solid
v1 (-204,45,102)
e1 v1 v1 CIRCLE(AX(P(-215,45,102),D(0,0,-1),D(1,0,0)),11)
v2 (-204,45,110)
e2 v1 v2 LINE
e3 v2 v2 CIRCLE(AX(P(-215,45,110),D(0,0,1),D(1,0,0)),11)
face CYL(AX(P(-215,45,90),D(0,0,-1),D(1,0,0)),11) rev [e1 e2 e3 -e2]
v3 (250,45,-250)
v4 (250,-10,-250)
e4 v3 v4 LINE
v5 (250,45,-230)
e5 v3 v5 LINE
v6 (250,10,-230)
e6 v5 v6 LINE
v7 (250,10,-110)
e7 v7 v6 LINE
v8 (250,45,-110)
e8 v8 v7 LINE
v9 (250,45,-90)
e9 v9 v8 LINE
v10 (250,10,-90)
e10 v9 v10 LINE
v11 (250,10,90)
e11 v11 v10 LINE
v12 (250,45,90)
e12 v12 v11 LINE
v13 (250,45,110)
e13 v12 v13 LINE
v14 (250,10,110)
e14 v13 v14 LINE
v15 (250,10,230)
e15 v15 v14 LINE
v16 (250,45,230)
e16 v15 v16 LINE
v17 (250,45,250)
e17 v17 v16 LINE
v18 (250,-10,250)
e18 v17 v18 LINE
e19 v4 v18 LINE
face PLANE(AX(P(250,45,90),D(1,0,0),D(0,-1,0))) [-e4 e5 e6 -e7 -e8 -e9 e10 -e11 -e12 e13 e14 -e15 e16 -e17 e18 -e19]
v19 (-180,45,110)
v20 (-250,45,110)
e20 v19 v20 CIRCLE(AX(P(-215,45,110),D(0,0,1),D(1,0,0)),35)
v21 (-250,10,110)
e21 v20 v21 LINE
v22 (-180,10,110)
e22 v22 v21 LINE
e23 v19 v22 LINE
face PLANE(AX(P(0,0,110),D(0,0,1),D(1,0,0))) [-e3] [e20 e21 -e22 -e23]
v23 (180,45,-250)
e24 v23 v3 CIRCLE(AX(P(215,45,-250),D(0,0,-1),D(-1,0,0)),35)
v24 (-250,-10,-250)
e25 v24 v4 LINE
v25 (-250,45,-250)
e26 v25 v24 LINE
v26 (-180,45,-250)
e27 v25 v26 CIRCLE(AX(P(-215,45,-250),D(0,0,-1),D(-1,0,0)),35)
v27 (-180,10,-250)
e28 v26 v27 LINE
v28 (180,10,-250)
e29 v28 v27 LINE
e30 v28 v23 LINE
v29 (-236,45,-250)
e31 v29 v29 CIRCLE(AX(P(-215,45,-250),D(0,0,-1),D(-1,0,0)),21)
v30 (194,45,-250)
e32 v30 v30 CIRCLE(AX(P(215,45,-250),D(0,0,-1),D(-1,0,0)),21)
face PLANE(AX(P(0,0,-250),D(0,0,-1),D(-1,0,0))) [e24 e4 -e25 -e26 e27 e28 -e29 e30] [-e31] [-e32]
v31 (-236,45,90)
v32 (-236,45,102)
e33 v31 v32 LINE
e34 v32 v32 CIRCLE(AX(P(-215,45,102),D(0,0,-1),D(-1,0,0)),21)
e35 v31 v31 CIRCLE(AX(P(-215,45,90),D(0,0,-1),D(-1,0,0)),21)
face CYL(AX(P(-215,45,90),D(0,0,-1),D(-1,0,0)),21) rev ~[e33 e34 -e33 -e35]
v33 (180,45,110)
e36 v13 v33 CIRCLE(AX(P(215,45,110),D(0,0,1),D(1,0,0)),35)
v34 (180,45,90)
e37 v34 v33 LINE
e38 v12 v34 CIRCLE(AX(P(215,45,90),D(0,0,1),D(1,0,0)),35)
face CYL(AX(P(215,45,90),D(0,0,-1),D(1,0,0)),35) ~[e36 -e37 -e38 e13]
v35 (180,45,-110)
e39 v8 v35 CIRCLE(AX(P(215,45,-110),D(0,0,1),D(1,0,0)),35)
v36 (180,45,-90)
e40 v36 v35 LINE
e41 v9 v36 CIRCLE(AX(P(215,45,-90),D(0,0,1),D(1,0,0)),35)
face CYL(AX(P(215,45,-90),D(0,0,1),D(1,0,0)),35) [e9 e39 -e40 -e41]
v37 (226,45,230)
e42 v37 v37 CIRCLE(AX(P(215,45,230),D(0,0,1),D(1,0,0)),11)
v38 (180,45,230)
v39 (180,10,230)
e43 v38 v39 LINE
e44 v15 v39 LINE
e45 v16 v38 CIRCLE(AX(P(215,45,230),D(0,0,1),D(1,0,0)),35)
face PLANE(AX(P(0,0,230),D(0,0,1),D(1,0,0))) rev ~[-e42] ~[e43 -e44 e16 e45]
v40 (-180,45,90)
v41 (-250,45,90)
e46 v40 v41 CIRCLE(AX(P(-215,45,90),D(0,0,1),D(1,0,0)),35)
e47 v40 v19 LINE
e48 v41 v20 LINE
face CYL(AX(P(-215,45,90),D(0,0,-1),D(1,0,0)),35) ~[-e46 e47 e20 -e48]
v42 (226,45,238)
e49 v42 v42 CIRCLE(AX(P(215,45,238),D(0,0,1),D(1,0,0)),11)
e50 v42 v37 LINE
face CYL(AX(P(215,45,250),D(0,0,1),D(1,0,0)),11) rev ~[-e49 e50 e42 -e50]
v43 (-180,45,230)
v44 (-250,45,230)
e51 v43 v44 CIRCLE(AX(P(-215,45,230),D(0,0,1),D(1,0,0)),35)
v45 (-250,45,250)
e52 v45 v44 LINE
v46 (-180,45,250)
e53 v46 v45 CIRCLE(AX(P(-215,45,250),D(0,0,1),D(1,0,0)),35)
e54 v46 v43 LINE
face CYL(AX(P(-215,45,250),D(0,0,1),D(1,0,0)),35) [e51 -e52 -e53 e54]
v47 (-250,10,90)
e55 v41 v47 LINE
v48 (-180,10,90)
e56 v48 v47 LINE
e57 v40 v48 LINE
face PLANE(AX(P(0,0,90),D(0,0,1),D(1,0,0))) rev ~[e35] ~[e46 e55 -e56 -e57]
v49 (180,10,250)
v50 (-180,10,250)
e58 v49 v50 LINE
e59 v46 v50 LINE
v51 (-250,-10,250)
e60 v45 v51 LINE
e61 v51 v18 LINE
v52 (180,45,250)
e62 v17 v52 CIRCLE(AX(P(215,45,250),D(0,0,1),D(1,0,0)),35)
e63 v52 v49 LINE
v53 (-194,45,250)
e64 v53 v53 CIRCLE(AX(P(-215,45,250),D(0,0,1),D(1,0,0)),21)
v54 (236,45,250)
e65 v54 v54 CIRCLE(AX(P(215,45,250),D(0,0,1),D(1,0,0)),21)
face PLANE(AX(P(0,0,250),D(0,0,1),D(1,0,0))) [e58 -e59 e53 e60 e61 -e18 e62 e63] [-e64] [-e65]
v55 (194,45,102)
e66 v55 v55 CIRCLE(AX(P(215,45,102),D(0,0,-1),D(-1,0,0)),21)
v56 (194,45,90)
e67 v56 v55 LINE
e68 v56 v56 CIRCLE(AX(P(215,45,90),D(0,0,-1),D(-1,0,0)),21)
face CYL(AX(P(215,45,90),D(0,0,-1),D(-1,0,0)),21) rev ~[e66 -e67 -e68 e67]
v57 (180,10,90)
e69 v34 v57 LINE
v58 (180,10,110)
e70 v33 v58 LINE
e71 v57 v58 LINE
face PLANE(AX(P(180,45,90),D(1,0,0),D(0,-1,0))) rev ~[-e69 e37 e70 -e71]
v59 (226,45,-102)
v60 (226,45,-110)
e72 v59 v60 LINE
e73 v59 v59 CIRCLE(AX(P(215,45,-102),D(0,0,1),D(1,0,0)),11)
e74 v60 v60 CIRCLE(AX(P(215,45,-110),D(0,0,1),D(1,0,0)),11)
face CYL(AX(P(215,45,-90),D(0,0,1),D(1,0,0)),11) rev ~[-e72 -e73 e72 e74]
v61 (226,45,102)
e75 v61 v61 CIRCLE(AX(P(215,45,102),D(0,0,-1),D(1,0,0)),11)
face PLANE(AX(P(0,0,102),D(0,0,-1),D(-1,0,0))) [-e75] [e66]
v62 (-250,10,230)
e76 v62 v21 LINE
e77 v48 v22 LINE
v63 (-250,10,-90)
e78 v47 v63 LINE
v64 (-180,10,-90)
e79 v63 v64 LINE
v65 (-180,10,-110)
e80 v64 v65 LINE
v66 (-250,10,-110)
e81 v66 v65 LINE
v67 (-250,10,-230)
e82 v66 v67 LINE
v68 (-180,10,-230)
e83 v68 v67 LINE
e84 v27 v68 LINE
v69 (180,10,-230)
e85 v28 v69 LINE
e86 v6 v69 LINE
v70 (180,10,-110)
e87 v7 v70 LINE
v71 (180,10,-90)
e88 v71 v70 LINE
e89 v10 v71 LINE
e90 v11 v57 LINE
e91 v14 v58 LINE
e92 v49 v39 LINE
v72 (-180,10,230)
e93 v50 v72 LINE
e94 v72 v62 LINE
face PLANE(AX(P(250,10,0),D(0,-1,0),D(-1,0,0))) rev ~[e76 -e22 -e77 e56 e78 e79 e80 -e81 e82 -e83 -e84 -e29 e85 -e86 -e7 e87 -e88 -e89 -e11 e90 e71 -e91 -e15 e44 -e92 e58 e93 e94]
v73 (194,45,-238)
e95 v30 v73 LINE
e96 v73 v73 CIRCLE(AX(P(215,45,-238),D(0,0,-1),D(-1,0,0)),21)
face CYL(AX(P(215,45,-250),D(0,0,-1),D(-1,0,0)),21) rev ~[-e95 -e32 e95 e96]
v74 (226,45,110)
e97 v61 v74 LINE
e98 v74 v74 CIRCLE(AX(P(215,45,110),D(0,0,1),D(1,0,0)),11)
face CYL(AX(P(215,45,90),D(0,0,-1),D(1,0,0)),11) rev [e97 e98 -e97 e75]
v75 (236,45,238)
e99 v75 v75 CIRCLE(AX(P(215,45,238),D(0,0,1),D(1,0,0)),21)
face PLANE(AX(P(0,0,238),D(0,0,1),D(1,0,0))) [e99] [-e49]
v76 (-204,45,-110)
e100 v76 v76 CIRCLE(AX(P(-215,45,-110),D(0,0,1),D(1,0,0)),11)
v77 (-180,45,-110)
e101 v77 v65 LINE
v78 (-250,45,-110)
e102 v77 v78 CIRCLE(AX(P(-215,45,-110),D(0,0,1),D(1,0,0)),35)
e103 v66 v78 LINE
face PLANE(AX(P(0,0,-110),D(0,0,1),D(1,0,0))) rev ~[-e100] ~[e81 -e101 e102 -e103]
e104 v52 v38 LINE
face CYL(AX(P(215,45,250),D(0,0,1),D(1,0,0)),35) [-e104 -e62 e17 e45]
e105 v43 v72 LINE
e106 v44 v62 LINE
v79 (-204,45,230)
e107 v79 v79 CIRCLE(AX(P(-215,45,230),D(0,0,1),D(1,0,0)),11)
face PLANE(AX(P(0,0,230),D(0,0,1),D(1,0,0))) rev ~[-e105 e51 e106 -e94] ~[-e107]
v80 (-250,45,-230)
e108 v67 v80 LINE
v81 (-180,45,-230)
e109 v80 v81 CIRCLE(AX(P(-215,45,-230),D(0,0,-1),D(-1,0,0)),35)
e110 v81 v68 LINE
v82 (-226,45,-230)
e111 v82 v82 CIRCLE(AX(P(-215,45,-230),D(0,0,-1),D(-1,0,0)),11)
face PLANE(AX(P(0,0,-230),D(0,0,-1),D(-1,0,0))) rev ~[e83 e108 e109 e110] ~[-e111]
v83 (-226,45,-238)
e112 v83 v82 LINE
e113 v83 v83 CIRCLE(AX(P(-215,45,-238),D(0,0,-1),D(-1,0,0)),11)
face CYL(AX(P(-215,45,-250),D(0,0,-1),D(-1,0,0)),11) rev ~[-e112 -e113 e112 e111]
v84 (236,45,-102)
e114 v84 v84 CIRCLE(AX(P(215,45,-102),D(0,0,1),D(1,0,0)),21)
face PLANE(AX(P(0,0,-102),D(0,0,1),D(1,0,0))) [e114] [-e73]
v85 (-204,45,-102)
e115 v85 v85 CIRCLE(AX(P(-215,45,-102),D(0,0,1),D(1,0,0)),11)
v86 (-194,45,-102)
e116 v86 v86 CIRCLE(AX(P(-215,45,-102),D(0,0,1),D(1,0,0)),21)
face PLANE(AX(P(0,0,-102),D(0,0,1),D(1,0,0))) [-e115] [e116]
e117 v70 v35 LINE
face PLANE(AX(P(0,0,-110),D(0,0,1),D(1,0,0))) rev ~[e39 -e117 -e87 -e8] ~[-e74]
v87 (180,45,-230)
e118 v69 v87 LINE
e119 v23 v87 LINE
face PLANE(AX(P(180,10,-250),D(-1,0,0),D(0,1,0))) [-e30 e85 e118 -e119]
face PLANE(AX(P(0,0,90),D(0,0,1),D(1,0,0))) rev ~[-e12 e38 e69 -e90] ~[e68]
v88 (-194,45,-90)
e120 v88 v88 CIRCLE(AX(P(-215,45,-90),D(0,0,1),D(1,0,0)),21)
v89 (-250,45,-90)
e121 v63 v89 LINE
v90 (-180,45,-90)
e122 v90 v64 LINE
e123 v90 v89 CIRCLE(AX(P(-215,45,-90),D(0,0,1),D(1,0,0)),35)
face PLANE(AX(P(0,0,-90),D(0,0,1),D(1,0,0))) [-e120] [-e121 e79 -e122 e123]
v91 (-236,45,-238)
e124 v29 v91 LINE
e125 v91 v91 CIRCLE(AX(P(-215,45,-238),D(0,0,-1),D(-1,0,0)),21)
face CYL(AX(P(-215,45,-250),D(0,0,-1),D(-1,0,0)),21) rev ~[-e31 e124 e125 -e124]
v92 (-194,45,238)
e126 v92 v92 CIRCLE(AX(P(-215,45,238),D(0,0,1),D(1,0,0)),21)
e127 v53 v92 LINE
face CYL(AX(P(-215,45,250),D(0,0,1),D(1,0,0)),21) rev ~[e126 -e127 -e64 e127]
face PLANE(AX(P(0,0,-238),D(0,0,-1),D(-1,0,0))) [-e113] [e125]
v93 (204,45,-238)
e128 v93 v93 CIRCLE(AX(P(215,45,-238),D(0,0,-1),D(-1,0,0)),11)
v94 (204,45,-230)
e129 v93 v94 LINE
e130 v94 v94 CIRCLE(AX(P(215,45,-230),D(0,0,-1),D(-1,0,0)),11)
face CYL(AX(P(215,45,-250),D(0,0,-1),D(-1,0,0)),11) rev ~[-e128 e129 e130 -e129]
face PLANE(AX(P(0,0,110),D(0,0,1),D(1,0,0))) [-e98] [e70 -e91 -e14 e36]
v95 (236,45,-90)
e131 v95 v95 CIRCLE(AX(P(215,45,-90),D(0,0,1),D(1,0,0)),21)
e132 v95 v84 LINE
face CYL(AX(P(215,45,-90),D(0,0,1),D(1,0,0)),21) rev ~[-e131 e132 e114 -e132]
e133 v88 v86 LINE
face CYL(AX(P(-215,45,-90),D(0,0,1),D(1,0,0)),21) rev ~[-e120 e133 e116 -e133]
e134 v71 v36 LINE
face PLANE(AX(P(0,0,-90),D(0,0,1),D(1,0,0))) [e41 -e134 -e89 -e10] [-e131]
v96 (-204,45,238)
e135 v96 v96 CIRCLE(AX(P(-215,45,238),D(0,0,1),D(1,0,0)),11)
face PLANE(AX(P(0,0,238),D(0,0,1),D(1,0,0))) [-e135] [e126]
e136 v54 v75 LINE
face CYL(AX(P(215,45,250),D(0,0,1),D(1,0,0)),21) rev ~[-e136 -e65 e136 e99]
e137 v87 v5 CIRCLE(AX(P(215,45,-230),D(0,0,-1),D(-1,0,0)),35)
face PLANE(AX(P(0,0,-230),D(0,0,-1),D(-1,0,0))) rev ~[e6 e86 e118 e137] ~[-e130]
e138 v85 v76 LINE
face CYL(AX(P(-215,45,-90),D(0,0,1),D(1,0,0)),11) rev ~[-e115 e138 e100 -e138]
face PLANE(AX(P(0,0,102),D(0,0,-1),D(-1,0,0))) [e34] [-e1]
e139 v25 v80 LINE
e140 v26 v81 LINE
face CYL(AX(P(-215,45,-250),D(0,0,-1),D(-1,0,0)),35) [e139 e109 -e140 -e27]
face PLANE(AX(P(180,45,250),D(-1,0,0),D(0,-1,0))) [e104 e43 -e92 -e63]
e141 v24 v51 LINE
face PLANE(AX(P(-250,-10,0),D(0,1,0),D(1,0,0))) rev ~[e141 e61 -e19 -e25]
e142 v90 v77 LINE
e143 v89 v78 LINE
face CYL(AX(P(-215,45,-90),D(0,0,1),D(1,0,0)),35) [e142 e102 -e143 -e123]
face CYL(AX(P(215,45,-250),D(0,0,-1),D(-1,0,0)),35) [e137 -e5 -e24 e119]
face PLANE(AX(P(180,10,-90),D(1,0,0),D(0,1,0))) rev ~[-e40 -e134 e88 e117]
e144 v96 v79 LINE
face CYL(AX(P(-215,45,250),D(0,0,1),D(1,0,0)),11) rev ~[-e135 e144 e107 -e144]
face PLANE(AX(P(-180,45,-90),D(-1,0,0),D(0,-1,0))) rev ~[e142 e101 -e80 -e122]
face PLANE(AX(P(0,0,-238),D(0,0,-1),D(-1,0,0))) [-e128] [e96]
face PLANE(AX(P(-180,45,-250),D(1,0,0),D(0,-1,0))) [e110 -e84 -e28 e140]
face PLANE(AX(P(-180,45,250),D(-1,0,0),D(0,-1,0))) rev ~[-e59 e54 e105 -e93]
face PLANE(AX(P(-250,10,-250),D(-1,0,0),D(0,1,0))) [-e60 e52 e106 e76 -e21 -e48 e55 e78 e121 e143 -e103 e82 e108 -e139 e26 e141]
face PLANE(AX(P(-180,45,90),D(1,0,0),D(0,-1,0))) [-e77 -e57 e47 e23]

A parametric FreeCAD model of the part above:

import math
import FreeCAD as App
import Part
import Sketcher
from FreeCAD import Vector
Q = App.Units.Quantity

doc = App.newDocument("Part")
params = doc.addObject("Spreadsheet::Sheet", "Params")
for row, (alias, value) in enumerate([
    ("sketch1_width", "500 mm"),
    ("sketch1_height", "20 mm"),
    ("pad1_length", "500 mm"),
    ("sketch2_diameter", "22 mm"),
    ("sketch2_radius", "35 mm"),
    ("sketch2_height", "45 mm"),
    ("pad2_length", "20 mm"),
    ("sketch3_diameter", "22 mm"),
    ("sketch3_radius", "35 mm"),
    ("sketch3_height", "45 mm"),
    ("pad3_length", "20 mm"),
    ("sketch4_diameter", "42 mm"),
    ("pocket1_length", "12 mm"),
    ("sketch5_diameter", "42 mm"),
    ("pocket2_length", "12 mm"),
    ("sketch6_diameter", "22 mm"),
    ("sketch6_radius", "35 mm"),
    ("sketch6_height", "45 mm"),
    ("pad4_length", "20 mm"),
    ("sketch7_diameter", "22 mm"),
    ("sketch7_height", "45 mm"),
    ("sketch7_radius", "35 mm"),
    ("pad5_length", "20 mm"),
    ("sketch8_diameter", "42 mm"),
    ("pocket3_length", "12 mm"),
    ("sketch9_diameter", "42 mm"),
    ("pocket4_length", "12 mm"),
    ("sketch10_diameter", "22 mm"),
    ("sketch10_radius", "35 mm"),
    ("sketch10_height", "35 mm"),
    ("pad6_length", "20 mm"),
    ("sketch11_diameter", "22 mm"),
    ("sketch11_radius", "35 mm"),
    ("sketch11_height", "35 mm"),
    ("pad7_length", "20 mm"),
    ("sketch12_diameter", "22 mm"),
    ("sketch12_radius", "35 mm"),
    ("sketch12_height", "35 mm"),
    ("pad8_length", "20 mm"),
    ("sketch13_diameter", "42 mm"),
    ("pocket5_length", "12 mm"),
    ("sketch14_diameter", "42 mm"),
    ("pocket6_length", "12 mm"),
    ("sketch15_diameter", "22 mm"),
    ("sketch15_radius", "35 mm"),
    ("sketch15_height", "35 mm"),
    ("pad9_length", "20 mm"),
    ("sketch16_diameter", "42 mm"),
    ("pocket7_length", "12 mm"),
    ("sketch17_diameter", "42 mm"),
    ("pocket8_length", "12 mm"),
], start=1):
    params.set(f"A{row}", alias)
    params.set(f"B{row}", "=" + value)
    params.setAlias(f"B{row}", alias)

body = doc.addObject("PartDesign::Body", "Body")

# Sketch on XY plane
sketch1 = doc.addObject("Sketcher::SketchObject", "Sketch")
body.addObject(sketch1)
sketch1.AttachmentSupport = (doc.XY_Plane, [""])
sketch1.MapMode = "FlatFace"
sketch1.addGeometry([
    Part.LineSegment(Vector(-250, 10, 0), Vector(-250, -10, 0)),
    Part.LineSegment(Vector(-250, -10, 0), Vector(250, -10, 0)),
    Part.LineSegment(Vector(250, -10, 0), Vector(250, 10, 0)),
    Part.LineSegment(Vector(250, 10, 0), Vector(-250, 10, 0)),
], False)
sketch1.addConstraint([
    Sketcher.Constraint("Coincident", 0, 2, 1, 1),
    Sketcher.Constraint("Coincident", 1, 2, 2, 1),
    Sketcher.Constraint("Coincident", 2, 2, 3, 1),
    Sketcher.Constraint("Coincident", 3, 2, 0, 1),
    Sketcher.Constraint("Vertical", 0),
    Sketcher.Constraint("Horizontal", 1),
    Sketcher.Constraint("Vertical", 2),
    Sketcher.Constraint("Horizontal", 3),
    Sketcher.Constraint("Symmetric", 0, 2, 2, 2, -1, 1),
    Sketcher.Constraint("DistanceX", 1, 1, 1, 2, Q("500 mm")),
    Sketcher.Constraint("DistanceY", 0, 2, 0, 1, Q("20 mm")),
])
sketch1.setExpression("Constraints[9]", "Params.sketch1_width")
sketch1.setExpression("Constraints[10]", "Params.sketch1_height")
pad1 = doc.addObject("PartDesign::Pad", "Pad")
body.addObject(pad1)
pad1.Profile = sketch1
pad1.setExpression("Length", "Params.pad1_length")
pad1.Midplane = True

# Sketch on XY plane
sketch2 = doc.addObject("Sketcher::SketchObject", "Sketch001")
body.addObject(sketch2)
sketch2.AttachmentSupport = (doc.XY_Plane, [""])
sketch2.MapMode = "FlatFace"
sketch2.AttachmentOffset = App.Placement(Vector(0, 0, 250), App.Rotation())
sketch2.addGeometry([
    Part.LineSegment(Vector(-180, 0, 0), Vector(-180, 45, 0)),  # 0
    Part.ArcOfCircle(Part.Circle(Vector(-215, 45, 0), Vector(0, 0, 1), 35), math.radians(0), math.radians(180)),  # 1
    Part.LineSegment(Vector(-250, 45, 0), Vector(-250, 0, 0)),  # 2
    Part.LineSegment(Vector(-250, 0, 0), Vector(-180, 0, 0)),  # 3
    Part.Circle(Vector(-215, 45, 0), Vector(0, 0, 1), 11),  # 4
], False)
sketch2.addConstraint([
    Sketcher.Constraint("Tangent", 0, 2, 1, 1),
    Sketcher.Constraint("Tangent", 1, 2, 2, 1),
    Sketcher.Constraint("Coincident", 2, 2, 3, 1),
    Sketcher.Constraint("Coincident", 3, 2, 0, 1),
    Sketcher.Constraint("Vertical", 0),
    Sketcher.Constraint("Vertical", 2),
    Sketcher.Constraint("Horizontal", 3),
    Sketcher.Constraint("Coincident", 4, 3, 1, 3),
    Sketcher.Constraint("PointOnObject", 2, 2, -1),
    Sketcher.Constraint("Diameter", 4, Q("22 mm")),
    Sketcher.Constraint("Radius", 1, Q("35 mm")),
    Sketcher.Constraint("DistanceY", 0, 1, 0, 2, Q("45 mm")),
    Sketcher.Constraint("DistanceX", 1, 3, -1, 1, Q("215 mm")),
])
sketch2.setExpression("Constraints[9]", "Params.sketch2_diameter")
sketch2.setExpression("Constraints[10]", "Params.sketch2_radius")
sketch2.setExpression("Constraints[11]", "Params.sketch2_height")
pad2 = doc.addObject("PartDesign::Pad", "Pad001")
body.addObject(pad2)
pad2.Profile = sketch2
pad2.setExpression("Length", "Params.pad2_length")
pad2.Reversed = True

# Sketch on XY plane
sketch3 = doc.addObject("Sketcher::SketchObject", "Sketch002")
body.addObject(sketch3)
sketch3.AttachmentSupport = (doc.XY_Plane, [""])
sketch3.MapMode = "FlatFace"
sketch3.AttachmentOffset = App.Placement(Vector(0, 0, 90), App.Rotation())
sketch3.addGeometry([
    Part.LineSegment(Vector(-180, 0, 0), Vector(-180, 45, 0)),  # 0
    Part.ArcOfCircle(Part.Circle(Vector(-215, 45, 0), Vector(0, 0, 1), 35), math.radians(0), math.radians(180)),  # 1
    Part.LineSegment(Vector(-250, 45, 0), Vector(-250, 0, 0)),  # 2
    Part.LineSegment(Vector(-250, 0, 0), Vector(-180, 0, 0)),  # 3
    Part.Circle(Vector(-215, 45, 0), Vector(0, 0, 1), 11),  # 4
], False)
sketch3.addConstraint([
    Sketcher.Constraint("Tangent", 0, 2, 1, 1),
    Sketcher.Constraint("Tangent", 1, 2, 2, 1),
    Sketcher.Constraint("Coincident", 2, 2, 3, 1),
    Sketcher.Constraint("Coincident", 3, 2, 0, 1),
    Sketcher.Constraint("Vertical", 0),
    Sketcher.Constraint("Vertical", 2),
    Sketcher.Constraint("Horizontal", 3),
    Sketcher.Constraint("Coincident", 4, 3, 1, 3),
    Sketcher.Constraint("PointOnObject", 2, 2, -1),
    Sketcher.Constraint("Diameter", 4, Q("22 mm")),
    Sketcher.Constraint("Radius", 1, Q("35 mm")),
    Sketcher.Constraint("DistanceY", 0, 1, 0, 2, Q("45 mm")),
    Sketcher.Constraint("DistanceX", 1, 3, -1, 1, Q("215 mm")),
])
sketch3.setExpression("Constraints[9]", "Params.sketch3_diameter")
sketch3.setExpression("Constraints[10]", "Params.sketch3_radius")
sketch3.setExpression("Constraints[11]", "Params.sketch3_height")
pad3 = doc.addObject("PartDesign::Pad", "Pad002")
body.addObject(pad3)
pad3.Profile = sketch3
pad3.setExpression("Length", "Params.pad3_length")

# Sketch on XY plane
sketch4 = doc.addObject("Sketcher::SketchObject", "Sketch003")
body.addObject(sketch4)
sketch4.AttachmentSupport = (doc.XY_Plane, [""])
sketch4.MapMode = "FlatFace"
sketch4.AttachmentOffset = App.Placement(Vector(0, 0, 250), App.Rotation())
sketch4.addGeometry(Part.Circle(Vector(-215, 45, 0), Vector(0, 0, 1), 21), False)
sketch4.addConstraint([
    Sketcher.Constraint("Diameter", 0, Q("42 mm")),
    Sketcher.Constraint("DistanceX", 0, 3, -1, 1, Q("215 mm")),
    Sketcher.Constraint("DistanceY", -1, 1, 0, 3, Q("45 mm")),
])
sketch4.setExpression("Constraints[0]", "Params.sketch4_diameter")
pocket1 = doc.addObject("PartDesign::Pocket", "Pocket")
body.addObject(pocket1)
pocket1.Profile = sketch4
pocket1.setExpression("Length", "Params.pocket1_length")

# Sketch on XY plane
sketch5 = doc.addObject("Sketcher::SketchObject", "Sketch004")
body.addObject(sketch5)
sketch5.AttachmentSupport = (doc.XY_Plane, [""])
sketch5.MapMode = "FlatFace"
sketch5.AttachmentOffset = App.Placement(Vector(0, 0, 90), App.Rotation())
sketch5.addGeometry(Part.Circle(Vector(-215, 45, 0), Vector(0, 0, 1), 21), False)
sketch5.addConstraint([
    Sketcher.Constraint("Diameter", 0, Q("42 mm")),
    Sketcher.Constraint("DistanceX", 0, 3, -1, 1, Q("215 mm")),
    Sketcher.Constraint("DistanceY", -1, 1, 0, 3, Q("45 mm")),
])
sketch5.setExpression("Constraints[0]", "Params.sketch5_diameter")
pocket2 = doc.addObject("PartDesign::Pocket", "Pocket001")
body.addObject(pocket2)
pocket2.Profile = sketch5
pocket2.setExpression("Length", "Params.pocket2_length")
pocket2.Reversed = True

# Sketch on XY plane
sketch6 = doc.addObject("Sketcher::SketchObject", "Sketch005")
body.addObject(sketch6)
sketch6.AttachmentSupport = (doc.XY_Plane, [""])
sketch6.MapMode = "FlatFace"
sketch6.AttachmentOffset = App.Placement(Vector(0, 0, 250), App.Rotation())
sketch6.addGeometry([
    Part.LineSegment(Vector(250, 0, 0), Vector(250, 45, 0)),  # 0
    Part.ArcOfCircle(Part.Circle(Vector(215, 45, 0), Vector(0, 0, 1), 35), math.radians(0), math.radians(180)),  # 1
    Part.LineSegment(Vector(180, 45, 0), Vector(180, 0, 0)),  # 2
    Part.LineSegment(Vector(180, 0, 0), Vector(250, 0, 0)),  # 3
    Part.Circle(Vector(215, 45, 0), Vector(0, 0, 1), 11),  # 4
], False)
sketch6.addConstraint([
    Sketcher.Constraint("Tangent", 0, 2, 1, 1),
    Sketcher.Constraint("Tangent", 1, 2, 2, 1),
    Sketcher.Constraint("Coincident", 2, 2, 3, 1),
    Sketcher.Constraint("Coincident", 3, 2, 0, 1),
    Sketcher.Constraint("Vertical", 0),
    Sketcher.Constraint("Vertical", 2),
    Sketcher.Constraint("Horizontal", 3),
    Sketcher.Constraint("Coincident", 4, 3, 1, 3),
    Sketcher.Constraint("PointOnObject", 2, 2, -1),
    Sketcher.Constraint("Diameter", 4, Q("22 mm")),
    Sketcher.Constraint("Radius", 1, Q("35 mm")),
    Sketcher.Constraint("DistanceY", 0, 1, 0, 2, Q("45 mm")),
    Sketcher.Constraint("DistanceX", -1, 1, 1, 3, Q("215 mm")),
])
sketch6.setExpression("Constraints[9]", "Params.sketch6_diameter")
sketch6.setExpression("Constraints[10]", "Params.sketch6_radius")
sketch6.setExpression("Constraints[11]", "Params.sketch6_height")
pad4 = doc.addObject("PartDesign::Pad", "Pad003")
body.addObject(pad4)
pad4.Profile = sketch6
pad4.setExpression("Length", "Params.pad4_length")
pad4.Reversed = True

# Sketch on XY plane
sketch7 = doc.addObject("Sketcher::SketchObject", "Sketch006")
body.addObject(sketch7)
sketch7.AttachmentSupport = (doc.XY_Plane, [""])
sketch7.MapMode = "FlatFace"
sketch7.AttachmentOffset = App.Placement(Vector(0, 0, 90), App.Rotation())
sketch7.addGeometry([
    Part.LineSegment(Vector(250, 0, 0), Vector(250, 45, 0)),  # 0
    Part.ArcOfCircle(Part.Circle(Vector(215, 45, 0), Vector(0, 0, 1), 35), math.radians(0), math.radians(180)),  # 1
    Part.LineSegment(Vector(180, 45, 0), Vector(180, 0, 0)),  # 2
    Part.LineSegment(Vector(180, 0, 0), Vector(250, 0, 0)),  # 3
    Part.Circle(Vector(215, 45, 0), Vector(0, 0, 1), 11),  # 4
], False)
sketch7.addConstraint([
    Sketcher.Constraint("Tangent", 0, 2, 1, 1),
    Sketcher.Constraint("Tangent", 1, 2, 2, 1),
    Sketcher.Constraint("Coincident", 2, 2, 3, 1),
    Sketcher.Constraint("Coincident", 3, 2, 0, 1),
    Sketcher.Constraint("Vertical", 0),
    Sketcher.Constraint("Vertical", 2),
    Sketcher.Constraint("Horizontal", 3),
    Sketcher.Constraint("Coincident", 4, 3, 1, 3),
    Sketcher.Constraint("PointOnObject", 2, 2, -1),
    Sketcher.Constraint("Diameter", 4, Q("22 mm")),
    Sketcher.Constraint("DistanceY", 0, 1, 0, 2, Q("45 mm")),
    Sketcher.Constraint("Radius", 1, Q("35 mm")),
    Sketcher.Constraint("DistanceX", -1, 1, 1, 3, Q("215 mm")),
])
sketch7.setExpression("Constraints[9]", "Params.sketch7_diameter")
sketch7.setExpression("Constraints[10]", "Params.sketch7_height")
sketch7.setExpression("Constraints[11]", "Params.sketch7_radius")
pad5 = doc.addObject("PartDesign::Pad", "Pad004")
body.addObject(pad5)
pad5.Profile = sketch7
pad5.setExpression("Length", "Params.pad5_length")

# Sketch on XY plane
sketch8 = doc.addObject("Sketcher::SketchObject", "Sketch007")
body.addObject(sketch8)
sketch8.AttachmentSupport = (doc.XY_Plane, [""])
sketch8.MapMode = "FlatFace"
sketch8.AttachmentOffset = App.Placement(Vector(0, 0, 250), App.Rotation())
sketch8.addGeometry(Part.Circle(Vector(215, 45, 0), Vector(0, 0, 1), 21), False)
sketch8.addConstraint([
    Sketcher.Constraint("Diameter", 0, Q("42 mm")),
    Sketcher.Constraint("DistanceX", -1, 1, 0, 3, Q("215 mm")),
    Sketcher.Constraint("DistanceY", -1, 1, 0, 3, Q("45 mm")),
])
sketch8.setExpression("Constraints[0]", "Params.sketch8_diameter")
pocket3 = doc.addObject("PartDesign::Pocket", "Pocket002")
body.addObject(pocket3)
pocket3.Profile = sketch8
pocket3.setExpression("Length", "Params.pocket3_length")

# Sketch on XY plane
sketch9 = doc.addObject("Sketcher::SketchObject", "Sketch008")
body.addObject(sketch9)
sketch9.AttachmentSupport = (doc.XY_Plane, [""])
sketch9.MapMode = "FlatFace"
sketch9.AttachmentOffset = App.Placement(Vector(0, 0, 90), App.Rotation())
sketch9.addGeometry(Part.Circle(Vector(215, 45, 0), Vector(0, 0, 1), 21), False)
sketch9.addConstraint([
    Sketcher.Constraint("Diameter", 0, Q("42 mm")),
    Sketcher.Constraint("DistanceX", -1, 1, 0, 3, Q("215 mm")),
    Sketcher.Constraint("DistanceY", -1, 1, 0, 3, Q("45 mm")),
])
sketch9.setExpression("Constraints[0]", "Params.sketch9_diameter")
pocket4 = doc.addObject("PartDesign::Pocket", "Pocket003")
body.addObject(pocket4)
pocket4.Profile = sketch9
pocket4.setExpression("Length", "Params.pocket4_length")
pocket4.Reversed = True

# Sketch on XY plane
sketch10 = doc.addObject("Sketcher::SketchObject", "Sketch009")
body.addObject(sketch10)
sketch10.AttachmentSupport = (doc.XY_Plane, [""])
sketch10.MapMode = "FlatFace"
sketch10.AttachmentOffset = App.Placement(Vector(0, 0, -250), App.Rotation())
sketch10.addGeometry([
    Part.LineSegment(Vector(180, 10, 0), Vector(180, 45, 0)),  # 0
    Part.ArcOfCircle(Part.Circle(Vector(215, 45, 0), Vector(0, 0, 1), 35), math.radians(0), math.radians(180)),  # 1
    Part.LineSegment(Vector(250, 45, 0), Vector(250, 10, 0)),  # 2
    Part.LineSegment(Vector(250, 10, 0), Vector(180, 10, 0)),  # 3
    Part.Circle(Vector(215, 45, 0), Vector(0, 0, 1), 11),  # 4
], False)
sketch10.addConstraint([
    Sketcher.Constraint("Tangent", 0, 2, 1, 2),
    Sketcher.Constraint("Tangent", 1, 1, 2, 1),
    Sketcher.Constraint("Coincident", 2, 2, 3, 1),
    Sketcher.Constraint("Coincident", 3, 2, 0, 1),
    Sketcher.Constraint("Vertical", 0),
    Sketcher.Constraint("Vertical", 2),
    Sketcher.Constraint("Horizontal", 3),
    Sketcher.Constraint("Coincident", 4, 3, 1, 3),
    Sketcher.Constraint("Diameter", 4, Q("22 mm")),
    Sketcher.Constraint("Radius", 1, Q("35 mm")),
    Sketcher.Constraint("DistanceY", 0, 1, 0, 2, Q("35 mm")),
    Sketcher.Constraint("DistanceX", -1, 1, 1, 3, Q("215 mm")),
    Sketcher.Constraint("DistanceY", -1, 1, 1, 3, Q("45 mm")),
])
sketch10.setExpression("Constraints[8]", "Params.sketch10_diameter")
sketch10.setExpression("Constraints[9]", "Params.sketch10_radius")
sketch10.setExpression("Constraints[10]", "Params.sketch10_height")
pad6 = doc.addObject("PartDesign::Pad", "Pad005")
body.addObject(pad6)
pad6.Profile = sketch10
pad6.setExpression("Length", "Params.pad6_length")

# Sketch on XY plane
sketch11 = doc.addObject("Sketcher::SketchObject", "Sketch010")
body.addObject(sketch11)
sketch11.AttachmentSupport = (doc.XY_Plane, [""])
sketch11.MapMode = "FlatFace"
sketch11.AttachmentOffset = App.Placement(Vector(0, 0, -250), App.Rotation())
sketch11.addGeometry([
    Part.LineSegment(Vector(-250, 10, 0), Vector(-250, 45, 0)),  # 0
    Part.ArcOfCircle(Part.Circle(Vector(-215, 45, 0), Vector(0, 0, 1), 35), math.radians(0), math.radians(180)),  # 1
    Part.LineSegment(Vector(-180, 45, 0), Vector(-180, 10, 0)),  # 2
    Part.LineSegment(Vector(-180, 10, 0), Vector(-250, 10, 0)),  # 3
    Part.Circle(Vector(-215, 45, 0), Vector(0, 0, 1), 11),  # 4
], False)
sketch11.addConstraint([
    Sketcher.Constraint("Tangent", 0, 2, 1, 2),
    Sketcher.Constraint("Tangent", 1, 1, 2, 1),
    Sketcher.Constraint("Coincident", 2, 2, 3, 1),
    Sketcher.Constraint("Coincident", 3, 2, 0, 1),
    Sketcher.Constraint("Vertical", 0),
    Sketcher.Constraint("Vertical", 2),
    Sketcher.Constraint("Horizontal", 3),
    Sketcher.Constraint("Coincident", 4, 3, 1, 3),
    Sketcher.Constraint("Diameter", 4, Q("22 mm")),
    Sketcher.Constraint("Radius", 1, Q("35 mm")),
    Sketcher.Constraint("DistanceY", 0, 1, 0, 2, Q("35 mm")),
    Sketcher.Constraint("DistanceX", 1, 3, -1, 1, Q("215 mm")),
    Sketcher.Constraint("DistanceY", -1, 1, 1, 3, Q("45 mm")),
])
sketch11.setExpression("Constraints[8]", "Params.sketch11_diameter")
sketch11.setExpression("Constraints[9]", "Params.sketch11_radius")
sketch11.setExpression("Constraints[10]", "Params.sketch11_height")
pad7 = doc.addObject("PartDesign::Pad", "Pad006")
body.addObject(pad7)
pad7.Profile = sketch11
pad7.setExpression("Length", "Params.pad7_length")

# Sketch on XY plane
sketch12 = doc.addObject("Sketcher::SketchObject", "Sketch011")
body.addObject(sketch12)
sketch12.AttachmentSupport = (doc.XY_Plane, [""])
sketch12.MapMode = "FlatFace"
sketch12.AttachmentOffset = App.Placement(Vector(0, 0, -90), App.Rotation())
sketch12.addGeometry([
    Part.LineSegment(Vector(250, 10, 0), Vector(250, 45, 0)),  # 0
    Part.ArcOfCircle(Part.Circle(Vector(215, 45, 0), Vector(0, 0, 1), 35), math.radians(0), math.radians(180)),  # 1
    Part.LineSegment(Vector(180, 45, 0), Vector(180, 10, 0)),  # 2
    Part.LineSegment(Vector(180, 10, 0), Vector(250, 10, 0)),  # 3
    Part.Circle(Vector(215, 45, 0), Vector(0, 0, 1), 11),  # 4
], False)
sketch12.addConstraint([
    Sketcher.Constraint("Tangent", 0, 2, 1, 1),
    Sketcher.Constraint("Tangent", 1, 2, 2, 1),
    Sketcher.Constraint("Coincident", 2, 2, 3, 1),
    Sketcher.Constraint("Coincident", 3, 2, 0, 1),
    Sketcher.Constraint("Vertical", 0),
    Sketcher.Constraint("Vertical", 2),
    Sketcher.Constraint("Horizontal", 3),
    Sketcher.Constraint("Coincident", 4, 3, 1, 3),
    Sketcher.Constraint("Diameter", 4, Q("22 mm")),
    Sketcher.Constraint("Radius", 1, Q("35 mm")),
    Sketcher.Constraint("DistanceY", 0, 1, 0, 2, Q("35 mm")),
    Sketcher.Constraint("DistanceX", -1, 1, 1, 3, Q("215 mm")),
    Sketcher.Constraint("DistanceY", -1, 1, 1, 3, Q("45 mm")),
])
sketch12.setExpression("Constraints[8]", "Params.sketch12_diameter")
sketch12.setExpression("Constraints[9]", "Params.sketch12_radius")
sketch12.setExpression("Constraints[10]", "Params.sketch12_height")
pad8 = doc.addObject("PartDesign::Pad", "Pad007")
body.addObject(pad8)
pad8.Profile = sketch12
pad8.setExpression("Length", "Params.pad8_length")
pad8.Reversed = True

# Sketch on XY plane
sketch13 = doc.addObject("Sketcher::SketchObject", "Sketch012")
body.addObject(sketch13)
sketch13.AttachmentSupport = (doc.XY_Plane, [""])
sketch13.MapMode = "FlatFace"
sketch13.AttachmentOffset = App.Placement(Vector(0, 0, -250), App.Rotation())
sketch13.addGeometry(Part.Circle(Vector(215, 45, 0), Vector(0, 0, 1), 21), False)
sketch13.addConstraint([
    Sketcher.Constraint("Diameter", 0, Q("42 mm")),
    Sketcher.Constraint("DistanceX", -1, 1, 0, 3, Q("215 mm")),
    Sketcher.Constraint("DistanceY", -1, 1, 0, 3, Q("45 mm")),
])
sketch13.setExpression("Constraints[0]", "Params.sketch13_diameter")
pocket5 = doc.addObject("PartDesign::Pocket", "Pocket004")
body.addObject(pocket5)
pocket5.Profile = sketch13
pocket5.setExpression("Length", "Params.pocket5_length")
pocket5.Reversed = True

# Sketch on XY plane
sketch14 = doc.addObject("Sketcher::SketchObject", "Sketch013")
body.addObject(sketch14)
sketch14.AttachmentSupport = (doc.XY_Plane, [""])
sketch14.MapMode = "FlatFace"
sketch14.AttachmentOffset = App.Placement(Vector(0, 0, -90), App.Rotation())
sketch14.addGeometry(Part.Circle(Vector(215, 45, 0), Vector(0, 0, 1), 21), False)
sketch14.addConstraint([
    Sketcher.Constraint("Diameter", 0, Q("42 mm")),
    Sketcher.Constraint("DistanceX", -1, 1, 0, 3, Q("215 mm")),
    Sketcher.Constraint("DistanceY", -1, 1, 0, 3, Q("45 mm")),
])
sketch14.setExpression("Constraints[0]", "Params.sketch14_diameter")
pocket6 = doc.addObject("PartDesign::Pocket", "Pocket005")
body.addObject(pocket6)
pocket6.Profile = sketch14
pocket6.setExpression("Length", "Params.pocket6_length")

# Sketch on XY plane
sketch15 = doc.addObject("Sketcher::SketchObject", "Sketch014")
body.addObject(sketch15)
sketch15.AttachmentSupport = (doc.XY_Plane, [""])
sketch15.MapMode = "FlatFace"
sketch15.AttachmentOffset = App.Placement(Vector(0, 0, -90), App.Rotation())
sketch15.addGeometry([
    Part.LineSegment(Vector(-180, 10, 0), Vector(-180, 45, 0)),  # 0
    Part.ArcOfCircle(Part.Circle(Vector(-215, 45, 0), Vector(0, 0, 1), 35), math.radians(0), math.radians(180)),  # 1
    Part.LineSegment(Vector(-250, 45, 0), Vector(-250, 10, 0)),  # 2
    Part.LineSegment(Vector(-250, 10, 0), Vector(-180, 10, 0)),  # 3
    Part.Circle(Vector(-215, 45, 0), Vector(0, 0, 1), 11),  # 4
], False)
sketch15.addConstraint([
    Sketcher.Constraint("Tangent", 0, 2, 1, 1),
    Sketcher.Constraint("Tangent", 1, 2, 2, 1),
    Sketcher.Constraint("Coincident", 2, 2, 3, 1),
    Sketcher.Constraint("Coincident", 3, 2, 0, 1),
    Sketcher.Constraint("Vertical", 0),
    Sketcher.Constraint("Vertical", 2),
    Sketcher.Constraint("Horizontal", 3),
    Sketcher.Constraint("Coincident", 4, 3, 1, 3),
    Sketcher.Constraint("Diameter", 4, Q("22 mm")),
    Sketcher.Constraint("Radius", 1, Q("35 mm")),
    Sketcher.Constraint("DistanceY", 0, 1, 0, 2, Q("35 mm")),
    Sketcher.Constraint("DistanceX", 1, 3, -1, 1, Q("215 mm")),
    Sketcher.Constraint("DistanceY", -1, 1, 1, 3, Q("45 mm")),
])
sketch15.setExpression("Constraints[8]", "Params.sketch15_diameter")
sketch15.setExpression("Constraints[9]", "Params.sketch15_radius")
sketch15.setExpression("Constraints[10]", "Params.sketch15_height")
pad9 = doc.addObject("PartDesign::Pad", "Pad008")
body.addObject(pad9)
pad9.Profile = sketch15
pad9.setExpression("Length", "Params.pad9_length")
pad9.Reversed = True

# Sketch on XY plane
sketch16 = doc.addObject("Sketcher::SketchObject", "Sketch015")
body.addObject(sketch16)
sketch16.AttachmentSupport = (doc.XY_Plane, [""])
sketch16.MapMode = "FlatFace"
sketch16.AttachmentOffset = App.Placement(Vector(0, 0, -250), App.Rotation())
sketch16.addGeometry(Part.Circle(Vector(-215, 45, 0), Vector(0, 0, 1), 21), False)
sketch16.addConstraint([
    Sketcher.Constraint("Diameter", 0, Q("42 mm")),
    Sketcher.Constraint("DistanceX", 0, 3, -1, 1, Q("215 mm")),
    Sketcher.Constraint("DistanceY", -1, 1, 0, 3, Q("45 mm")),
])
sketch16.setExpression("Constraints[0]", "Params.sketch16_diameter")
pocket7 = doc.addObject("PartDesign::Pocket", "Pocket006")
body.addObject(pocket7)
pocket7.Profile = sketch16
pocket7.setExpression("Length", "Params.pocket7_length")
pocket7.Reversed = True

# Sketch on XY plane
sketch17 = doc.addObject("Sketcher::SketchObject", "Sketch016")
body.addObject(sketch17)
sketch17.AttachmentSupport = (doc.XY_Plane, [""])
sketch17.MapMode = "FlatFace"
sketch17.AttachmentOffset = App.Placement(Vector(0, 0, -90), App.Rotation())
sketch17.addGeometry(Part.Circle(Vector(-215, 45, 0), Vector(0, 0, 1), 21), False)
sketch17.addConstraint([
    Sketcher.Constraint("Diameter", 0, Q("42 mm")),
    Sketcher.Constraint("DistanceX", 0, 3, -1, 1, Q("215 mm")),
    Sketcher.Constraint("DistanceY", -1, 1, 0, 3, Q("45 mm")),
])
sketch17.setExpression("Constraints[0]", "Params.sketch17_diameter")
pocket8 = doc.addObject("PartDesign::Pocket", "Pocket007")
body.addObject(pocket8)
pocket8.Profile = sketch17
pocket8.setExpression("Length", "Params.pocket8_length")

doc.recompute()
